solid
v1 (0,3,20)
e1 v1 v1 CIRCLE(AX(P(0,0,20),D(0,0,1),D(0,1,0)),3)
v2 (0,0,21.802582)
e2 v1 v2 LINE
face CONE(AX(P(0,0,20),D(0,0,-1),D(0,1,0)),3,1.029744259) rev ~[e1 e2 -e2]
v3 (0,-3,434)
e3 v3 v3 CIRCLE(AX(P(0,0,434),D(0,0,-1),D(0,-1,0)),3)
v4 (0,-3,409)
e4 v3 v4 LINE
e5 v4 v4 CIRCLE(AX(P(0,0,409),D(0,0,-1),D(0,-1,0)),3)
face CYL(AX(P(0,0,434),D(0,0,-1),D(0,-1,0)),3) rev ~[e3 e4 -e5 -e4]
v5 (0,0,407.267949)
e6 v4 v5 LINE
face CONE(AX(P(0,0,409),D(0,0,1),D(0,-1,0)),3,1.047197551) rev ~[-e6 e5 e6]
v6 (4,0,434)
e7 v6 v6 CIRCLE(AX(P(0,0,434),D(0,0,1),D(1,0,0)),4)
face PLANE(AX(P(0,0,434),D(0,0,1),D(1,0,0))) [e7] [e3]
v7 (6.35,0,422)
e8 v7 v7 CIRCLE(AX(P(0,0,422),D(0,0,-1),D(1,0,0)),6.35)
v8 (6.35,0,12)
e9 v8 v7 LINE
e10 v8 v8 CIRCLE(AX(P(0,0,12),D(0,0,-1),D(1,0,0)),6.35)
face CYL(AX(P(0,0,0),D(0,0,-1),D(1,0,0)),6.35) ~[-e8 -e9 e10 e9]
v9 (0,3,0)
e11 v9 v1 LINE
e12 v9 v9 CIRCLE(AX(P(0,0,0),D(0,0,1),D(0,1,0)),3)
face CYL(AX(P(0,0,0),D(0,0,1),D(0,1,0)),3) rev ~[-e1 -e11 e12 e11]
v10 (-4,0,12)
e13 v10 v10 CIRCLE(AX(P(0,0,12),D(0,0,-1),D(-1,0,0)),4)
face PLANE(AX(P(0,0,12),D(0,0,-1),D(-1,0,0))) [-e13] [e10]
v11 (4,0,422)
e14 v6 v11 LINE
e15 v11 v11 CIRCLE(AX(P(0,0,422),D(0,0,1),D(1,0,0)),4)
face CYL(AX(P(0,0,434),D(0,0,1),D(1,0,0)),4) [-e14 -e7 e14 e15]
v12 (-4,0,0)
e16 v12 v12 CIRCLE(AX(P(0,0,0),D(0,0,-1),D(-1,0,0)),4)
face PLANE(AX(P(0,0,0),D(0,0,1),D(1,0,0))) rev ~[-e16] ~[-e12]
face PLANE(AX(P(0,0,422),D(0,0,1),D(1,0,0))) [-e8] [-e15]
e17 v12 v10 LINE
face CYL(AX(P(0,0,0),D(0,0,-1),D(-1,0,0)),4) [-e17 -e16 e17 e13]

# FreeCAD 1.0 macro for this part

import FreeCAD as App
import Part
import Sketcher

V = App.Vector

doc = App.newDocument("Part")
params = doc.addObject("Spreadsheet::Sheet", "Params")
for row, (alias, value) in enumerate([
    ("sketch1_diameter", "12.7 mm"),
    ("pad1_length", "434 mm"),
    ("sketch2_diameter", "6 mm"),
    ("hole_diameter", "6 mm"),
    ("hole_depth", "25 mm"),
    ("sketch3_diameter", "6 mm"),
    ("hole2_diameter", "6 mm"),
    ("hole2_depth", "20 mm"),
    ("sketch4_diameter", "13 mm"),
    ("sketch4_diameter2", "8 mm"),
    ("pocket1_length", "12 mm"),
    ("sketch5_diameter", "13 mm"),
    ("sketch5_diameter2", "8 mm"),
    ("pocket2_length", "12 mm"),
], start=1):
    params.set(f"A{row}", alias)
    params.set(f"B{row}", "=" + value)
    params.setAlias(f"B{row}", alias)

body = doc.addObject("PartDesign::Body", "Body")

# Sketch on XY plane
sketch1 = body.newObject("Sketcher::SketchObject", "Sketch")
sketch1.AttachmentSupport = (doc.getObject("XY_Plane"), [""])
sketch1.MapMode = "FlatFace"
sketch1.addGeometry(Part.Circle(V(0, 0, 0), V(0, 0, 1), 6), False)
sketch1.addConstraint([
    Sketcher.Constraint("Coincident", 0, 3, -1, 1),
    Sketcher.Constraint("Diameter", 0, 12.7),
])
sketch1.setExpression("Constraints[1]", "Params.sketch1_diameter")
pad1 = body.newObject("PartDesign::Pad", "Pad")
pad1.Profile = sketch1
pad1.setExpression("Length", "Params.pad1_length")

# Sketch on XY plane
sketch2 = body.newObject("Sketcher::SketchObject", "Sketch001")
sketch2.AttachmentSupport = (doc.getObject("XY_Plane"), [""])
sketch2.MapMode = "FlatFace"
sketch2.AttachmentOffset = App.Placement(V(0, 0, 434), App.Rotation())
sketch2.addGeometry(Part.Circle(V(0, 0, 0), V(0, 0, 1), 3), False)
sketch2.addConstraint([
    Sketcher.Constraint("Coincident", 0, 3, -1, 1),
    Sketcher.Constraint("Diameter", 0, 6.0),
])
sketch2.setExpression("Constraints[1]", "Params.sketch2_diameter")
doc.recompute()
hole = body.newObject("PartDesign::Hole", "Hole")
hole.Profile = sketch2
hole.ThreadType = "None"
hole.setExpression("Diameter", "Params.hole_diameter")
hole.DepthType = "Dimension"
hole.setExpression("Depth", "Params.hole_depth")
hole.DrillPoint = "Angled"
hole.DrillPointAngle = 120

# Sketch on XY plane
sketch3 = body.newObject("Sketcher::SketchObject", "Sketch002")
sketch3.AttachmentSupport = (doc.getObject("XY_Plane"), [""])
sketch3.MapMode = "FlatFace"
sketch3.addGeometry(Part.Circle(V(0, 0, 0), V(0, 0, 1), 3), False)
sketch3.addConstraint([
    Sketcher.Constraint("Coincident", 0, 3, -1, 1),
    Sketcher.Constraint("Diameter", 0, 6.0),
])
sketch3.setExpression("Constraints[1]", "Params.sketch3_diameter")
doc.recompute()
hole2 = body.newObject("PartDesign::Hole", "Hole001")
hole2.Profile = sketch3
hole2.ThreadType = "None"
hole2.setExpression("Diameter", "Params.hole2_diameter")
hole2.DepthType = "Dimension"
hole2.setExpression("Depth", "Params.hole2_depth")
hole2.DrillPoint = "Angled"
hole2.DrillPointAngle = 118
hole2.Reversed = True

# Sketch on XY plane
sketch4 = body.newObject("Sketcher::SketchObject", "Sketch003")
sketch4.AttachmentSupport = (doc.getObject("XY_Plane"), [""])
sketch4.MapMode = "FlatFace"
sketch4.AttachmentOffset = App.Placement(V(0, 0, 434), App.Rotation())
sketch4.addGeometry([
    Part.Circle(V(0, 0, 0), V(0, 0, 1), 6.5),
    Part.Circle(V(0, 0, 0), V(0, 0, 1), 4),
], False)
sketch4.addConstraint([
    Sketcher.Constraint("Coincident", 0, 3, -1, 1),
    Sketcher.Constraint("Coincident", 1, 3, -1, 1),
    Sketcher.Constraint("Diameter", 0, 13.0),
    Sketcher.Constraint("Diameter", 1, 8.0),
])
sketch4.setExpression("Constraints[2]", "Params.sketch4_diameter")
sketch4.setExpression("Constraints[3]", "Params.sketch4_diameter2")
pocket1 = body.newObject("PartDesign::Pocket", "Pocket")
pocket1.Profile = sketch4
pocket1.setExpression("Length", "Params.pocket1_length")

# Sketch on XY plane
sketch5 = body.newObject("Sketcher::SketchObject", "Sketch004")
sketch5.AttachmentSupport = (doc.getObject("XY_Plane"), [""])
sketch5.MapMode = "FlatFace"
sketch5.addGeometry([
    Part.Circle(V(0, 0, 0), V(0, 0, 1), 6.5),
    Part.Circle(V(0, 0, 0), V(0, 0, 1), 4),
], False)
sketch5.addConstraint([
    Sketcher.Constraint("Coincident", 0, 3, -1, 1),
    Sketcher.Constraint("Coincident", 1, 3, -1, 1),
    Sketcher.Constraint("Diameter", 0, 13.0),
    Sketcher.Constraint("Diameter", 1, 8.0),
])
sketch5.setExpression("Constraints[2]", "Params.sketch5_diameter")
sketch5.setExpression("Constraints[3]", "Params.sketch5_diameter2")
pocket2 = body.newObject("PartDesign::Pocket", "Pocket001")
pocket2.Profile = sketch5
pocket2.setExpression("Length", "Params.pocket2_length")
pocket2.Reversed = True

doc.recompute()
